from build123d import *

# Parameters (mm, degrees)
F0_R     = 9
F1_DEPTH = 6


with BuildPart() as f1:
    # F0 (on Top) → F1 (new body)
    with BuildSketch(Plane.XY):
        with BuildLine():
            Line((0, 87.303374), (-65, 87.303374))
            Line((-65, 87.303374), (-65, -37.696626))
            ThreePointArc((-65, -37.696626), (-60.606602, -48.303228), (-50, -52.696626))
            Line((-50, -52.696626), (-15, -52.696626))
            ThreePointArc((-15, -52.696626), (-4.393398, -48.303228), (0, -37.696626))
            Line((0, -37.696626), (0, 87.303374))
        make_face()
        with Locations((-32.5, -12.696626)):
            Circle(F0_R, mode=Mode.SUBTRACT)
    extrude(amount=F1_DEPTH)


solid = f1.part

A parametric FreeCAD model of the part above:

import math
import FreeCAD as App
import Part
import Sketcher
from FreeCAD import Vector
Q = App.Units.Quantity

doc = App.newDocument("Part")
body = doc.addObject("PartDesign::Body", "Body")

sketch1 = doc.addObject("Sketcher::SketchObject", "Sketch")
body.addObject(sketch1)
sketch1.AttachmentSupport = (doc.XY_Plane, [""])
sketch1.MapMode = "FlatFace"
sketch1.addGeometry([
    Part.LineSegment(Vector(0, 87, 0), Vector(-65, 87, 0)),
    Part.LineSegment(Vector(-65, 87, 0), Vector(-65, -38, 0)),
    Part.ArcOfCircle(Part.Circle(Vector(-50, -38, 0), Vector(0, 0, 1), 15), math.radians(180), math.radians(270)),
    Part.LineSegment(Vector(-50, -53, 0), Vector(-15, -53, 0)),
    Part.ArcOfCircle(Part.Circle(Vector(-15, -38, 0), Vector(0, 0, 1), 15), math.radians(-90), math.radians(0)),
    Part.LineSegment(Vector(0, -38, 0), Vector(0, 87, 0)),
    Part.Circle(Vector(-32, -13, 0), Vector(0, 0, 1), 9),
], False)
sketch1.addConstraint([
    Sketcher.Constraint("Coincident", 0, 2, 1, 1),
    Sketcher.Constraint("Tangent", 1, 2, 2, 1),
    Sketcher.Constraint("Tangent", 2, 2, 3, 1),
    Sketcher.Constraint("Tangent", 3, 2, 4, 1),
    Sketcher.Constraint("Tangent", 4, 2, 5, 1),
    Sketcher.Constraint("Coincident", 5, 2, 0, 1),
    Sketcher.Constraint("Horizontal", 0),
    Sketcher.Constraint("Vertical", 1),
    Sketcher.Constraint("Horizontal", 3),
    Sketcher.Constraint("Vertical", 5),
    Sketcher.Constraint("Equal", 2, 4),
    Sketcher.Constraint("PointOnObject", 4, 2, -2),
    Sketcher.Constraint("Diameter", 6, Q("18 mm")),
    Sketcher.Constraint("Radius", 2, Q("14.999999 mm")),
    Sketcher.Constraint("DistanceX", 0, 2, 0, 1, Q("65 mm")),
    Sketcher.Constraint("DistanceY", 1, 2, 1, 1, Q("125 mm")),
    Sketcher.Constraint("DistanceY", 2, 3, 6, 3, Q("25.000001 mm")),
    Sketcher.Constraint("DistanceX", 6, 3, -1, 1, Q("32.5 mm")),
    Sketcher.Constraint("DistanceY", 2, 3, -1, 1, Q("37.696627 mm")),
])
pad1 = doc.addObject("PartDesign::Pad", "Pad")
body.addObject(pad1)
pad1.Profile = sketch1
pad1.Length = 6

doc.recompute()
